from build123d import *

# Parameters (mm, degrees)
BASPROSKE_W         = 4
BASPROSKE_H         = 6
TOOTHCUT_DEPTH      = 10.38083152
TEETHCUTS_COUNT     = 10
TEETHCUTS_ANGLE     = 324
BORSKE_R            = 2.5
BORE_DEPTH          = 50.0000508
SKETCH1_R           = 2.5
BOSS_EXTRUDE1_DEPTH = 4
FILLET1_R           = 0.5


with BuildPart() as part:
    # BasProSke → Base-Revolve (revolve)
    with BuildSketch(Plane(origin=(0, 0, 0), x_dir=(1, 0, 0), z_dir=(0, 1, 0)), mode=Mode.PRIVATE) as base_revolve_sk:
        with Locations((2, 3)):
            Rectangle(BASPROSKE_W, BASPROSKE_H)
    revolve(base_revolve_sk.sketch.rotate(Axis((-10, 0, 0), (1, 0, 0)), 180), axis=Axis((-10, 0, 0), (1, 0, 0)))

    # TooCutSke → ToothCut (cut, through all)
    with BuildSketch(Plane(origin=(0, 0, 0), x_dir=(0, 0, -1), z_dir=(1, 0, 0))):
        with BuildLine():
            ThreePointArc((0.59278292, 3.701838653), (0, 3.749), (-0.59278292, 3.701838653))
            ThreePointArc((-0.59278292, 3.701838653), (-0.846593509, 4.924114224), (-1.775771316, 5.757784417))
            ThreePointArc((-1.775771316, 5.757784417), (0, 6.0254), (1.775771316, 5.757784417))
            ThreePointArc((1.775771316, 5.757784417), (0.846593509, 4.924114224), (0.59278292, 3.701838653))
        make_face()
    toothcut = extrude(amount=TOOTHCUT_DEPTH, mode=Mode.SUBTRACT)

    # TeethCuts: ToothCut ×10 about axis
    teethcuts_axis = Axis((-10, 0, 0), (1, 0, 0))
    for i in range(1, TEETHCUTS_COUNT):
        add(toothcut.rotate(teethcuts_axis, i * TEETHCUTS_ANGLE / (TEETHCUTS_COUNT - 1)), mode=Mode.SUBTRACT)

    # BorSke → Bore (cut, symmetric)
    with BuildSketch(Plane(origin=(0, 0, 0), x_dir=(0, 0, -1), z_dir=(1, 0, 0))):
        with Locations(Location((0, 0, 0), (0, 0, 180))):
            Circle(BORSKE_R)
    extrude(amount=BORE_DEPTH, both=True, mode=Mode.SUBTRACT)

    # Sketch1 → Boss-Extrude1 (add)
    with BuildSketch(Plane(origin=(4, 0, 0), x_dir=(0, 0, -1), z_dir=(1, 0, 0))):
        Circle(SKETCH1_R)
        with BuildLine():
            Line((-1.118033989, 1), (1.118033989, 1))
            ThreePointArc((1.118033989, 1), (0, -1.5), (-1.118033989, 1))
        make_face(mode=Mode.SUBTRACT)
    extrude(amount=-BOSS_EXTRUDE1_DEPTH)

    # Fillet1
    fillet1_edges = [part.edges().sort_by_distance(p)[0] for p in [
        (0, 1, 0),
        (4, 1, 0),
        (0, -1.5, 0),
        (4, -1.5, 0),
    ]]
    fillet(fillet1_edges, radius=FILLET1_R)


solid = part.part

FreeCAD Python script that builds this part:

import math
import FreeCAD as App
import Part
import Sketcher


def edges_at(feature, points):
    """Names of the edges that pass closest to the given points."""
    edges = feature.Shape.Edges
    near = lambda p: min(range(len(edges)), key=lambda i: edges[i].distToShape(Part.Vertex(*p))[0])
    return sorted({f"Edge{near(p) + 1}" for p in points})

doc = App.newDocument("Part")
params = doc.addObject("Spreadsheet::Sheet", "Params")
for row, (alias, value) in enumerate([
    ("sketch1_width", "4 mm"),
    ("sketch1_height", "6 mm"),
    ("revolution_angle", "360 deg"),
    ("sketch2_radius", "2 mm"),
    ("sketch3_diameter", "5 mm"),
    ("pocket2_length", "100.000102 mm"),
    ("sketch4_diameter", "5 mm"),
    ("sketch4_radius", "1.5 mm"),
    ("pad1_length", "4 mm"),
    ("fillet_radius", "0.5 mm"),
], start=1):
    params.set(f"A{row}", alias)
    params.set(f"B{row}", "=" + value)
    params.setAlias(f"B{row}", alias)

body = doc.addObject("PartDesign::Body", "Body")

sketch1 = doc.addObject("Sketcher::SketchObject", "Sketch")
body.addObject(sketch1)
sketch1.AttachmentSupport = (doc.XZ_Plane, [""])
sketch1.MapMode = "FlatFace"
sketch1.addGeometry(Part.LineSegment(App.Vector(0, -6, 0), App.Vector(0, 0, 0)), False)
sketch1.addGeometry(Part.LineSegment(App.Vector(0, 0, 0), App.Vector(4, 0, 0)), False)
sketch1.addGeometry(Part.LineSegment(App.Vector(4, 0, 0), App.Vector(4, -6, 0)), False)
sketch1.addGeometry(Part.LineSegment(App.Vector(4, -6, 0), App.Vector(0, -6, 0)), False)
sketch1.addConstraint(Sketcher.Constraint("Coincident", 0, 2, 1, 1))
sketch1.addConstraint(Sketcher.Constraint("Coincident", 1, 2, 2, 1))
sketch1.addConstraint(Sketcher.Constraint("Coincident", 2, 2, 3, 1))
sketch1.addConstraint(Sketcher.Constraint("Coincident", 3, 2, 0, 1))
sketch1.addConstraint(Sketcher.Constraint("Vertical", 0))
sketch1.addConstraint(Sketcher.Constraint("Horizontal", 1))
sketch1.addConstraint(Sketcher.Constraint("Vertical", 2))
sketch1.addConstraint(Sketcher.Constraint("Horizontal", 3))
sketch1.addConstraint(Sketcher.Constraint("Coincident", 0, 2, -1, 1))
sketch1.addConstraint(Sketcher.Constraint("DistanceX", 1, 1, 1, 2, 4.0))
sketch1.addConstraint(Sketcher.Constraint("DistanceY", 0, 1, 0, 2, 6.0))
sketch1.setExpression("Constraints[9]", "Params.sketch1_width")
sketch1.setExpression("Constraints[10]", "Params.sketch1_height")
revolution = doc.addObject("PartDesign::Revolution", "Revolution")
body.addObject(revolution)
revolution.Profile = sketch1
revolution.ReferenceAxis = (sketch1, ["H_Axis"])
revolution.setExpression("Angle", "Params.revolution_angle")

sketch2 = doc.addObject("Sketcher::SketchObject", "Sketch001")
body.addObject(sketch2)
sketch2.AttachmentSupport = (doc.YZ_Plane, [""])
sketch2.MapMode = "FlatFace"
sketch2.addGeometry(Part.ArcOfCircle(Part.Circle(App.Vector(0, 0, 0), App.Vector(0, 0, 1), 3.749), math.radians(-9.097652), math.radians(9.097652)), False)
sketch2.addGeometry(Part.ArcOfCircle(Part.Circle(App.Vector(3.926653, -2.580107, 0), App.Vector(0, 0, 1), 2), math.radians(23.713784), math.radians(96.454088)), False)
sketch2.addGeometry(Part.ArcOfCircle(Part.Circle(App.Vector(0, 0, 0), App.Vector(0, 0, 1), 6.0254), math.radians(-17.140404), math.radians(17.140404)), False)
sketch2.addGeometry(Part.ArcOfCircle(Part.Circle(App.Vector(3.926653, 2.580107, 0), App.Vector(0, 0, 1), 2), math.radians(-96.454088), math.radians(-23.713784)), False)
sketch2.addConstraint(Sketcher.Constraint("Coincident", 0, 1, 1, 2))
sketch2.addConstraint(Sketcher.Constraint("Coincident", 1, 1, 2, 1))
sketch2.addConstraint(Sketcher.Constraint("Coincident", 2, 2, 3, 2))
sketch2.addConstraint(Sketcher.Constraint("Coincident", 3, 1, 0, 2))
sketch2.addConstraint(Sketcher.Constraint("Coincident", 0, 3, -1, 1))
sketch2.addConstraint(Sketcher.Constraint("Coincident", 2, 3, -1, 1))
sketch2.addConstraint(Sketcher.Constraint("Equal", 1, 3))
sketch2.addConstraint(Sketcher.Constraint("Symmetric", 1, 3, 3, 3, -1))
sketch2.addConstraint(Sketcher.Constraint("Radius", 1, 2.0))
sketch2.addConstraint(Sketcher.Constraint("Radius", 0, 3.749))
sketch2.addConstraint(Sketcher.Constraint("Radius", 2, 6.0254))
sketch2.addConstraint(Sketcher.Constraint("DistanceX", -1, 1, 0, 1, 3.701839))
sketch2.addConstraint(Sketcher.Constraint("DistanceY", 1, 1, -1, 1, 1.775771))
sketch2.setExpression("Constraints[8]", "Params.sketch2_radius")
pocket1 = doc.addObject("PartDesign::Pocket", "Pocket")
body.addObject(pocket1)
pocket1.Profile = sketch2
pocket1.Type = "ThroughAll"
pocket1.Reversed = True
doc.recompute()

polarpattern = doc.addObject("PartDesign::PolarPattern", "PolarPattern")
body.addObject(polarpattern)
polarpattern.Originals = [pocket1]
polarpattern.Axis = (doc.X_Axis, [""])
polarpattern.Angle = 360
polarpattern.Occurrences = 10
body.Tip = polarpattern

sketch3 = doc.addObject("Sketcher::SketchObject", "Sketch002")
body.addObject(sketch3)
sketch3.AttachmentSupport = (doc.YZ_Plane, [""])
sketch3.MapMode = "FlatFace"
sketch3.addGeometry(Part.Circle(App.Vector(0, 0, 0), App.Vector(0, 0, 1), 2.5), False)
sketch3.addConstraint(Sketcher.Constraint("Coincident", 0, 3, -1, 1))
sketch3.addConstraint(Sketcher.Constraint("Diameter", 0, 5.0))
sketch3.setExpression("Constraints[1]", "Params.sketch3_diameter")
pocket2 = doc.addObject("PartDesign::Pocket", "Pocket001")
body.addObject(pocket2)
pocket2.Profile = sketch3
pocket2.setExpression("Length", "Params.pocket2_length")
pocket2.Midplane = True

sketch4 = doc.addObject("Sketcher::SketchObject", "Sketch003")
body.addObject(sketch4)
sketch4.AttachmentSupport = (doc.YZ_Plane, [""])
sketch4.MapMode = "FlatFace"
sketch4.AttachmentOffset = App.Placement(App.Vector(0, 0, 4), App.Rotation())
sketch4.addGeometry(Part.Circle(App.Vector(0, 0, 0), App.Vector(0, 0, 1), 2.5), False)
sketch4.addGeometry(Part.ArcOfCircle(Part.Circle(App.Vector(0, 0, 0), App.Vector(0, 0, 1), 1.5), math.radians(48.189685), math.radians(311.810315)), False)
sketch4.addGeometry(Part.LineSegment(App.Vector(1, 1.118034, 0), App.Vector(1, -1.118034, 0)), False)
sketch4.addConstraint(Sketcher.Constraint("Coincident", 1, 1, 2, 1))
sketch4.addConstraint(Sketcher.Constraint("Coincident", 2, 2, 1, 2))
sketch4.addConstraint(Sketcher.Constraint("Vertical", 2))
sketch4.addConstraint(Sketcher.Constraint("Coincident", 0, 3, -1, 1))
sketch4.addConstraint(Sketcher.Constraint("Coincident", 1, 3, -1, 1))
sketch4.addConstraint(Sketcher.Constraint("Diameter", 0, 5.0))
sketch4.addConstraint(Sketcher.Constraint("Radius", 1, 1.5))
sketch4.addConstraint(Sketcher.Constraint("DistanceX", -1, 1, 1, 1, 1.0))
sketch4.setExpression("Constraints[5]", "Params.sketch4_diameter")
sketch4.setExpression("Constraints[6]", "Params.sketch4_radius")
pad1 = doc.addObject("PartDesign::Pad", "Pad")
body.addObject(pad1)
pad1.Profile = sketch4
pad1.setExpression("Length", "Params.pad1_length")
pad1.Reversed = True
doc.recompute()

fillet = doc.addObject("PartDesign::Fillet", "Fillet")
body.addObject(fillet)
fillet.Base = (pad1, edges_at(pad1, [
    (0, 1, 0),
    (4, 1, 0),
    (0, -1.5, 0),
    (4, -1.5, 0),
]))
fillet.setExpression("Radius", "Params.fillet_radius")

doc.recompute()
